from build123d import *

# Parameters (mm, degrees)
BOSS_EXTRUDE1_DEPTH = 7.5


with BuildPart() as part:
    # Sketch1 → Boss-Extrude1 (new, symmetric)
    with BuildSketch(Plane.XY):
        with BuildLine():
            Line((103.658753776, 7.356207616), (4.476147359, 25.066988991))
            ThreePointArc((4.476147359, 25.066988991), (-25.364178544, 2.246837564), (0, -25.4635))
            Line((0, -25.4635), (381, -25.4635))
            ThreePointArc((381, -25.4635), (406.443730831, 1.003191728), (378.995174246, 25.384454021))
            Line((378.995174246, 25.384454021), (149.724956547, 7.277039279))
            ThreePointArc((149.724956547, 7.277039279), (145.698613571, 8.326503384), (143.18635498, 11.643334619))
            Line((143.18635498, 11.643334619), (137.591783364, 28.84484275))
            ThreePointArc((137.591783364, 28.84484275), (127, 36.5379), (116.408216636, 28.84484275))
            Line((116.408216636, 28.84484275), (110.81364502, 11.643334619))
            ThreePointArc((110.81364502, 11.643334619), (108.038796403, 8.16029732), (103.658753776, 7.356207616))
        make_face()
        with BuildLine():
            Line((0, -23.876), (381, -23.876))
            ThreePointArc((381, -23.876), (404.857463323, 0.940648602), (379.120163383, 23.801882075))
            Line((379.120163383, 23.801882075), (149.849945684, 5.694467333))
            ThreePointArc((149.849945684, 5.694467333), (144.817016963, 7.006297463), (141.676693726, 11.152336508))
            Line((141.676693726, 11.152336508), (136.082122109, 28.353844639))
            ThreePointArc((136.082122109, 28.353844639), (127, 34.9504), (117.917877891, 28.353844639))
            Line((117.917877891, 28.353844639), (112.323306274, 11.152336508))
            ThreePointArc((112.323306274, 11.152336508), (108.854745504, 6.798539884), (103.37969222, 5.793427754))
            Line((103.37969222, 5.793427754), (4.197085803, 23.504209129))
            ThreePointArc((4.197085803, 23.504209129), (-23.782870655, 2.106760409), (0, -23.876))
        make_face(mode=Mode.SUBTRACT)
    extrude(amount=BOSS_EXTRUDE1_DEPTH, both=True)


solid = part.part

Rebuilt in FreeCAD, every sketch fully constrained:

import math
import FreeCAD as App
import Part
import Sketcher
from FreeCAD import Vector
Q = App.Units.Quantity

doc = App.newDocument("Part")
body = doc.addObject("PartDesign::Body", "Body")

# Sketch on XY plane
sketch1 = body.newObject("Sketcher::SketchObject", "Sketch")
sketch1.AttachmentSupport = (doc.getObject("XY_Plane"), [""])
sketch1.MapMode = "FlatFace"
sketch1.addGeometry([
    Part.LineSegment(Vector(104, 7, 0), Vector(4, 25, 0)),  # 0
    Part.ArcOfCircle(Part.Circle(Vector(0, 0, 0), Vector(0, 0, 1), 25), math.radians(80), math.radians(270)),  # 1
    Part.LineSegment(Vector(0, -25, 0), Vector(381, -25, 0)),  # 2
    Part.ArcOfCircle(Part.Circle(Vector(381, 0, 0), Vector(0, 0, 1), 25), math.radians(-90), math.radians(95)),  # 3
    Part.LineSegment(Vector(379, 25, 0), Vector(150, 7, 0)),  # 4
    Part.ArcOfCircle(Part.Circle(Vector(149, 14, 0), Vector(0, 0, 1), 6), math.radians(-162), math.radians(-85)),  # 5
    Part.LineSegment(Vector(143, 12, 0), Vector(138, 29, 0)),  # 6
    Part.ArcOfCircle(Part.Circle(Vector(127, 25, 0), Vector(0, 0, 1), 11), math.radians(18), math.radians(162)),  # 7
    Part.LineSegment(Vector(116, 29, 0), Vector(111, 12, 0)),  # 8
    Part.ArcOfCircle(Part.Circle(Vector(105, 14, 0), Vector(0, 0, 1), 6), math.radians(-100), math.radians(-18)),  # 9
    Part.LineSegment(Vector(381, -24, 0), Vector(0, -24, 0)),  # 10
    Part.ArcOfCircle(Part.Circle(Vector(0, 0, 0), Vector(0, 0, 1), 24), math.radians(80), math.radians(270)),  # 11
    Part.LineSegment(Vector(4, 24, 0), Vector(103, 6, 0)),  # 12
    Part.ArcOfCircle(Part.Circle(Vector(105, 14, 0), Vector(0, 0, 1), 8), math.radians(-100), math.radians(-18)),  # 13
    Part.LineSegment(Vector(112, 11, 0), Vector(118, 28, 0)),  # 14
    Part.ArcOfCircle(Part.Circle(Vector(127, 25, 0), Vector(0, 0, 1), 10), math.radians(18), math.radians(162)),  # 15
    Part.LineSegment(Vector(136, 28, 0), Vector(142, 11, 0)),  # 16
    Part.ArcOfCircle(Part.Circle(Vector(149, 14, 0), Vector(0, 0, 1), 8), math.radians(-162), math.radians(-85)),  # 17
    Part.LineSegment(Vector(150, 6, 0), Vector(379, 24, 0)),  # 18
    Part.ArcOfCircle(Part.Circle(Vector(381, 0, 0), Vector(0, 0, 1), 24), math.radians(-90), math.radians(95)),  # 19
], False)
sketch1.addConstraint([
    Sketcher.Constraint("Tangent", 0, 2, 1, 1),
    Sketcher.Constraint("Tangent", 1, 2, 2, 1),
    Sketcher.Constraint("Tangent", 2, 2, 3, 1),
    Sketcher.Constraint("Tangent", 3, 2, 4, 1),
    Sketcher.Constraint("Tangent", 4, 2, 5, 2),
    Sketcher.Constraint("Tangent", 5, 1, 6, 1),
    Sketcher.Constraint("Tangent", 6, 2, 7, 1),
    Sketcher.Constraint("Tangent", 7, 2, 8, 1),
    Sketcher.Constraint("Tangent", 8, 2, 9, 2),
    Sketcher.Constraint("Tangent", 9, 1, 0, 1),
    Sketcher.Constraint("Tangent", 10, 2, 11, 2),
    Sketcher.Constraint("Tangent", 11, 1, 12, 1),
    Sketcher.Constraint("Tangent", 12, 2, 13, 1),
    Sketcher.Constraint("Tangent", 13, 2, 14, 1),
    Sketcher.Constraint("Tangent", 14, 2, 15, 2),
    Sketcher.Constraint("Tangent", 15, 1, 16, 1),
    Sketcher.Constraint("Tangent", 16, 2, 17, 1),
    Sketcher.Constraint("Tangent", 17, 2, 18, 1),
    Sketcher.Constraint("Tangent", 18, 2, 19, 2),
    Sketcher.Constraint("Tangent", 19, 1, 10, 1),
    Sketcher.Constraint("Horizontal", 2),
    Sketcher.Constraint("Horizontal", 10),
    Sketcher.Constraint("Coincident", 1, 3, -1, 1),
    Sketcher.Constraint("Coincident", 11, 3, -1, 1),
    Sketcher.Constraint("Coincident", 13, 3, 9, 3),
    Sketcher.Constraint("Coincident", 15, 3, 7, 3),
    Sketcher.Constraint("Coincident", 17, 3, 5, 3),
    Sketcher.Constraint("Coincident", 19, 3, 3, 3),
    Sketcher.Constraint("Equal", 1, 3),
    Sketcher.Constraint("Equal", 5, 9),
    Sketcher.Constraint("Equal", 13, 17),
    Sketcher.Constraint("Parallel", 0, 12),
    Sketcher.Constraint("Parallel", 8, 14),
    Sketcher.Constraint("Horizontal", 5, 3, 9, 3),
    Sketcher.Constraint("Horizontal", 6, 2, 7, 2),
    Sketcher.Constraint("DistanceX", 2, 1, 2, 2, Q("15 in")),
    Sketcher.Constraint("Radius", 5, Q("0.25 in")),
    Sketcher.Constraint("Radius", 11, Q("0.94 in")),
    Sketcher.Constraint("DistanceX", -1, 1, 7, 3, Q("5 in")),
    Sketcher.Constraint("DistanceY", -1, 1, 7, 3, Q("1 in")),
    Sketcher.Constraint("Radius", 13, Q("0.3125 in")),
    Sketcher.Constraint("Radius", 15, Q("0.376 in")),
    Sketcher.Constraint("DistanceX", 9, 3, 5, 3, Q("1.75 in")),
    Sketcher.Constraint("DistanceX", 5, 1, 4, 2, Q("6.538602 mm")),
])
pad1 = body.newObject("PartDesign::Pad", "Pad")
pad1.Profile = sketch1
pad1.Length = 15
pad1.Midplane = True

doc.recompute()
